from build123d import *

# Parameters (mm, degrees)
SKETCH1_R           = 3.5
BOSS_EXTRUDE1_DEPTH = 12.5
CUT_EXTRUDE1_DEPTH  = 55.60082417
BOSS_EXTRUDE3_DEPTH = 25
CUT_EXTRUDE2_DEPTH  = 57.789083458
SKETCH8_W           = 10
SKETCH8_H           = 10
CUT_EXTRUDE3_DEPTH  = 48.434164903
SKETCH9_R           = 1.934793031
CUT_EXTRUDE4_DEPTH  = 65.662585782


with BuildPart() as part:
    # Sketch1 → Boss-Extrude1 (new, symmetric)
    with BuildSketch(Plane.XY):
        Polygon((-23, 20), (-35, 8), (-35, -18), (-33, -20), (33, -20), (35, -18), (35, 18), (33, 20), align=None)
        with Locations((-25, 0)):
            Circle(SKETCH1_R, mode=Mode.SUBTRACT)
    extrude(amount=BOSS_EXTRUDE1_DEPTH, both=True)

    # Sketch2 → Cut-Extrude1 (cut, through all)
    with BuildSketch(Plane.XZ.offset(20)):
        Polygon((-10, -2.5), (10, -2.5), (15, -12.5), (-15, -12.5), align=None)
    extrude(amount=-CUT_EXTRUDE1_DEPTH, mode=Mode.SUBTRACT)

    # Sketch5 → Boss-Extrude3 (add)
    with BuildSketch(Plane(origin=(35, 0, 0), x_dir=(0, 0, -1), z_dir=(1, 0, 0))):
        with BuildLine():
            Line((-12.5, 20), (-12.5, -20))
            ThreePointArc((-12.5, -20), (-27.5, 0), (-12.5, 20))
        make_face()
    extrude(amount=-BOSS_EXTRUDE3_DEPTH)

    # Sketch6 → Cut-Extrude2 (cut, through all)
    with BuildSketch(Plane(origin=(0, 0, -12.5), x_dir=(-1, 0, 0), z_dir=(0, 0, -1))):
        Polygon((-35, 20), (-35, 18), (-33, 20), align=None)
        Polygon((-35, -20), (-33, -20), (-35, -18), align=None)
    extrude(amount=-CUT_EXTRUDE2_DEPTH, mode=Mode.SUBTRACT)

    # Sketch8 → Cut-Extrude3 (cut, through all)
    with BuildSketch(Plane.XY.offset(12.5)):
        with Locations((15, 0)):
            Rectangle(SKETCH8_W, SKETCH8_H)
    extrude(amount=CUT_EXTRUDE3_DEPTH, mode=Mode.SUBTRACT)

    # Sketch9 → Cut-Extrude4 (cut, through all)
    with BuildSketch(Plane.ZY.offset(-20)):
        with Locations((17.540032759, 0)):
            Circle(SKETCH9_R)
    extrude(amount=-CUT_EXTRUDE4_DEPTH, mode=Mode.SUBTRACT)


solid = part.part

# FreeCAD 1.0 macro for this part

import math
import FreeCAD as App
import Part
import Sketcher

V = App.Vector
Q = App.Units.Quantity


def add_polygon(sketch, points):
    """Adds a closed chain of lines whose ends are joined by coincident constraints."""
    first, n = sketch.GeometryCount, len(points)
    for a, b in zip(points, points[1:] + points[:1]):
        sketch.addGeometry(Part.LineSegment(App.Vector(*a, 0), App.Vector(*b, 0)), False)
    for i in range(n):
        sketch.addConstraint(Sketcher.Constraint("Coincident", first + i, 2, first + (i + 1) % n, 1))

doc = App.newDocument("Part")
body = doc.addObject("PartDesign::Body", "Body")

# Sketch on XY plane
sketch1 = body.newObject("Sketcher::SketchObject", "Sketch")
sketch1.AttachmentSupport = (doc.getObject("XY_Plane"), [""])
sketch1.MapMode = "FlatFace"
add_polygon(sketch1, [(-23, 20), (-35, 8), (-35, -18), (-33, -20), (33, -20), (35, -18), (35, 18), (33, 20)])  # lines 0-7
sketch1.addGeometry(Part.Circle(V(-25, 0, 0), V(0, 0, 1), 3.5), False)  # 8
sketch1.addConstraint([
    Sketcher.Constraint("Vertical", 1),
    Sketcher.Constraint("Horizontal", 3),
    Sketcher.Constraint("Vertical", 5),
    Sketcher.Constraint("Horizontal", 7),
    Sketcher.Constraint("Symmetric", 1, 2, 5, 2, -1, 1),
    Sketcher.Constraint("Symmetric", 2, 2, 6, 2, -1, 1),
    Sketcher.Constraint("PointOnObject", 8, 3, -1),
    Sketcher.Constraint("Perpendicular", 0, 2),
    Sketcher.Constraint("Perpendicular", 2, 4),
    Sketcher.Constraint("Horizontal", 1, 2, 4, 2),
    Sketcher.Constraint("Vertical", 3, 2, 6, 2),
    Sketcher.Constraint("Diameter", 8, Q("7 mm")),
    Sketcher.Constraint("DistanceX", 3, 1, 3, 2, Q("66 mm")),
    Sketcher.Constraint("DistanceX", 7, 2, 7, 1, Q("56 mm")),
    Sketcher.Constraint("DistanceY", 1, 2, 1, 1, Q("26 mm")),
    Sketcher.Constraint("DistanceX", 8, 3, -1, 1, Q("25 mm")),
    Sketcher.Constraint("DistanceX", 0, 2, -1, 1, Q("35 mm")),
])
pad1 = body.newObject("PartDesign::Pad", "Pad")
pad1.Profile = sketch1
pad1.Length = 25
pad1.Midplane = True

# Sketch on XZ plane
sketch2 = body.newObject("Sketcher::SketchObject", "Sketch001")
sketch2.AttachmentSupport = (doc.getObject("XZ_Plane"), [""])
sketch2.MapMode = "FlatFace"
sketch2.AttachmentOffset = App.Placement(V(0, 0, 20), App.Rotation())
add_polygon(sketch2, [(10, -2.5), (-10, -2.5), (-15, -12.5), (15, -12.5)])  # lines 0-3
sketch2.addConstraint([
    Sketcher.Constraint("Horizontal", 0),
    Sketcher.Constraint("Horizontal", 2),
    Sketcher.Constraint("Equal", 1, 3),
    Sketcher.Constraint("DistanceX", 0, 2, 0, 1, Q("20 mm")),
    Sketcher.Constraint("DistanceX", 2, 1, 2, 2, Q("30 mm")),
    Sketcher.Constraint("DistanceX", 0, 2, -1, 1, Q("10 mm")),
    Sketcher.Constraint("DistanceY", 1, 2, 0, 2, Q("10 mm")),
    Sketcher.Constraint("DistanceY", 0, 2, -1, 1, Q("2.5 mm")),
])
pocket1 = body.newObject("PartDesign::Pocket", "Pocket")
pocket1.Profile = sketch2
pocket1.Type = "ThroughAll"

# Sketch on YZ plane
sketch3 = body.newObject("Sketcher::SketchObject", "Sketch002")
sketch3.AttachmentSupport = (doc.getObject("YZ_Plane"), [""])
sketch3.MapMode = "FlatFace"
sketch3.AttachmentOffset = App.Placement(V(0, 0, 35), App.Rotation())
sketch3.addGeometry([
    Part.LineSegment(V(-20, 12.5, 0), V(20, 12.5, 0)),
    Part.ArcOfCircle(Part.Circle(V(0, 6.666667, 0), V(0, 0, 1), 20.833333), math.radians(16.260205), math.radians(163.739795)),
], False)
sketch3.addConstraint([
    Sketcher.Constraint("Coincident", 0, 1, 1, 2),
    Sketcher.Constraint("Coincident", 1, 1, 0, 2),
    Sketcher.Constraint("Horizontal", 0),
    Sketcher.Constraint("PointOnObject", 1, 3, -2),
    Sketcher.Constraint("DistanceX", 0, 1, 0, 2, Q("40 mm")),
    Sketcher.Constraint("DistanceY", -1, 1, 0, 1, Q("12.5 mm")),
    Sketcher.Constraint("Radius", 1, Q("20.833333 mm")),
])
pad2 = body.newObject("PartDesign::Pad", "Pad001")
pad2.Profile = sketch3
pad2.Length = 25
pad2.Reversed = True

# Sketch on XY plane
sketch4 = body.newObject("Sketcher::SketchObject", "Sketch003")
sketch4.AttachmentSupport = (doc.getObject("XY_Plane"), [""])
sketch4.MapMode = "FlatFace"
sketch4.AttachmentOffset = App.Placement(V(0, 0, -12.5), App.Rotation())
add_polygon(sketch4, [(35, 20), (35, 18), (33, 20)])  # lines 0-2
add_polygon(sketch4, [(35, -20), (33, -20), (35, -18)])  # lines 3-5
sketch4.addConstraint([
    Sketcher.Constraint("Vertical", 0),
    Sketcher.Constraint("Horizontal", 2),
    Sketcher.Constraint("Horizontal", 3),
    Sketcher.Constraint("Vertical", 5),
    Sketcher.Constraint("Symmetric", 1, 2, 3, 2, -1),
    Sketcher.Constraint("Symmetric", 0, 2, 4, 2, -1),
    Sketcher.Constraint("Perpendicular", 1, 4),
    Sketcher.Constraint("DistanceX", 2, 1, 2, 2, Q("2 mm")),
    Sketcher.Constraint("DistanceX", -1, 1, 0, 2, Q("35 mm")),
    Sketcher.Constraint("DistanceY", -1, 1, 0, 2, Q("18 mm")),
])
pocket2 = body.newObject("PartDesign::Pocket", "Pocket001")
pocket2.Profile = sketch4
pocket2.Type = "ThroughAll"
pocket2.Reversed = True

# Sketch on XY plane
sketch5 = body.newObject("Sketcher::SketchObject", "Sketch004")
sketch5.AttachmentSupport = (doc.getObject("XY_Plane"), [""])
sketch5.MapMode = "FlatFace"
sketch5.AttachmentOffset = App.Placement(V(0, 0, 12.5), App.Rotation())
add_polygon(sketch5, [(10, 5), (10, -5), (20, -5), (20, 5)])  # lines 0-3
sketch5.addConstraint([
    Sketcher.Constraint("Vertical", 0),
    Sketcher.Constraint("Horizontal", 1),
    Sketcher.Constraint("Vertical", 2),
    Sketcher.Constraint("Horizontal", 3),
    Sketcher.Constraint("Equal", 3, 0),
    Sketcher.Constraint("DistanceX", 1, 1, 1, 2, Q("10 mm")),
    Sketcher.Constraint("DistanceX", -1, 1, 0, 2, Q("10 mm")),
    Sketcher.Constraint("DistanceY", 0, 2, -1, 1, Q("5 mm")),
])
pocket3 = body.newObject("PartDesign::Pocket", "Pocket002")
pocket3.Profile = sketch5
pocket3.Type = "ThroughAll"
pocket3.Reversed = True

# Sketch on YZ plane
sketch6 = body.newObject("Sketcher::SketchObject", "Sketch005")
sketch6.AttachmentSupport = (doc.getObject("YZ_Plane"), [""])
sketch6.MapMode = "FlatFace"
sketch6.AttachmentOffset = App.Placement(V(0, 0, 20), App.Rotation())
sketch6.addGeometry(Part.Circle(V(0, 17.540033, 0), V(0, 0, 1), 1.934793), False)
sketch6.addConstraint([
    Sketcher.Constraint("PointOnObject", 0, 3, -2),
    Sketcher.Constraint("Diameter", 0, Q("3.869586 mm")),
    Sketcher.Constraint("DistanceY", -1, 1, 0, 3, Q("17.540033 mm")),
])
pocket4 = body.newObject("PartDesign::Pocket", "Pocket003")
pocket4.Profile = sketch6
pocket4.Type = "ThroughAll"
pocket4.Reversed = True

doc.recompute()
